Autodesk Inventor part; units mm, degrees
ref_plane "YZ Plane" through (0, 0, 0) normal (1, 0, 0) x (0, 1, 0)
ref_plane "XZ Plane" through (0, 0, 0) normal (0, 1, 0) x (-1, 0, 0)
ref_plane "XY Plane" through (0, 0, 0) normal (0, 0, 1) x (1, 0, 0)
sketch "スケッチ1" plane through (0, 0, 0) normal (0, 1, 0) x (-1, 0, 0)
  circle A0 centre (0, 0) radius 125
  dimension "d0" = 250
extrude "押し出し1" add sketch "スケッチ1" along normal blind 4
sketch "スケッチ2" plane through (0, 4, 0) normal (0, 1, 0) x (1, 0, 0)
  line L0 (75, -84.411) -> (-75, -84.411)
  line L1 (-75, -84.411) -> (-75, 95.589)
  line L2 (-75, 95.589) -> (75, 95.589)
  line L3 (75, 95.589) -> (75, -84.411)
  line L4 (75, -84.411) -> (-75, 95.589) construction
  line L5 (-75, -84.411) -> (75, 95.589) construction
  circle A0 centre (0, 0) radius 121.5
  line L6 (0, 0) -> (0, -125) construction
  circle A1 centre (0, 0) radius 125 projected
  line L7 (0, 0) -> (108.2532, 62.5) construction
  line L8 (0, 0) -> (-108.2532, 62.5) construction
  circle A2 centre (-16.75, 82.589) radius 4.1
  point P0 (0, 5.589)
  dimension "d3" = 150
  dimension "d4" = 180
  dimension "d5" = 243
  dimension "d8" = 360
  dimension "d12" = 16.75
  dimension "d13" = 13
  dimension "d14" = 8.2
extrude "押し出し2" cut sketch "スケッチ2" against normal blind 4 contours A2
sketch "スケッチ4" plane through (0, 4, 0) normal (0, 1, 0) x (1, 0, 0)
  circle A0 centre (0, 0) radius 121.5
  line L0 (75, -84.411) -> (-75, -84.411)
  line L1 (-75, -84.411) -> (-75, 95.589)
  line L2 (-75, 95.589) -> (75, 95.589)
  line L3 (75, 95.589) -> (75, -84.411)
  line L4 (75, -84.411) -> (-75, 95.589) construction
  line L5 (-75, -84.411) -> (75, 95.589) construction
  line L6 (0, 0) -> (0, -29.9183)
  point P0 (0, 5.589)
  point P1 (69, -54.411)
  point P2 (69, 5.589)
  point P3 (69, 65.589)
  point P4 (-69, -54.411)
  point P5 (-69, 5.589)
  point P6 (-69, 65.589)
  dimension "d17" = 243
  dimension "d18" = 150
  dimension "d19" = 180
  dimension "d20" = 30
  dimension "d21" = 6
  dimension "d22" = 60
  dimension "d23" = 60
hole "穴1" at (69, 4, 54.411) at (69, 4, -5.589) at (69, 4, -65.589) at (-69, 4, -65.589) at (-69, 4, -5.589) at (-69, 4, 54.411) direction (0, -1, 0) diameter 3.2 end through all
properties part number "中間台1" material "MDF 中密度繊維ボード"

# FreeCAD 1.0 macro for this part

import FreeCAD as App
import Part
import Sketcher
Q = App.Units.Quantity

doc = App.newDocument("Part")
body = doc.addObject("PartDesign::Body", "Body")

# Sketch on XZ plane
sketch1 = doc.addObject("Sketcher::SketchObject", "Sketch")
body.addObject(sketch1)
sketch1.AttachmentSupport = (doc.XZ_Plane, [""])
sketch1.MapMode = "FlatFace"
sketch1.addGeometry(Part.Circle(App.Vector(0, 0, 0), App.Vector(0, 0, 1), 125), False)
sketch1.addConstraint(Sketcher.Constraint("Coincident", 0, 3, -1, 1))
sketch1.addConstraint(Sketcher.Constraint("Diameter", 0, Q("250 mm")))
pad1 = doc.addObject("PartDesign::Pad", "Pad")
body.addObject(pad1)
pad1.Profile = sketch1
pad1.Length = 4
pad1.Reversed = True

# Sketch on XZ plane
sketch2 = doc.addObject("Sketcher::SketchObject", "Sketch001")
body.addObject(sketch2)
sketch2.AttachmentSupport = (doc.XZ_Plane, [""])
sketch2.MapMode = "FlatFace"
sketch2.AttachmentOffset = App.Placement(App.Vector(0, 0, -4), App.Rotation())
sketch2.addGeometry(Part.Circle(App.Vector(-16.8, -82.6, 0), App.Vector(0, 0, 1), 4.1), False)
sketch2.addConstraint(Sketcher.Constraint("Diameter", 0, Q("8.2 mm")))
sketch2.addConstraint(Sketcher.Constraint("DistanceX", 0, 3, -1, 1, Q("16.75 mm")))
sketch2.addConstraint(Sketcher.Constraint("DistanceY", 0, 3, -1, 1, Q("82.589 mm")))
pocket1 = doc.addObject("PartDesign::Pocket", "Pocket")
body.addObject(pocket1)
pocket1.Profile = sketch2
pocket1.Length = 4
pocket1.Reversed = True

# Sketch on XZ plane
sketch3 = doc.addObject("Sketcher::SketchObject", "Sketch002")
body.addObject(sketch3)
sketch3.AttachmentSupport = (doc.XZ_Plane, [""])
sketch3.MapMode = "FlatFace"
sketch3.AttachmentOffset = App.Placement(App.Vector(0, 0, -4), App.Rotation())
sketch3.addGeometry(Part.Circle(App.Vector(69, 54.4, 0), App.Vector(0, 0, 1), 1.6), False)
sketch3.addGeometry(Part.Circle(App.Vector(69, -5.6, 0), App.Vector(0, 0, 1), 1.6), False)
sketch3.addGeometry(Part.Circle(App.Vector(69, -65.6, 0), App.Vector(0, 0, 1), 1.6), False)
sketch3.addGeometry(Part.Circle(App.Vector(-69, -65.6, 0), App.Vector(0, 0, 1), 1.6), False)
sketch3.addGeometry(Part.Circle(App.Vector(-69, -5.6, 0), App.Vector(0, 0, 1), 1.6), False)
sketch3.addGeometry(Part.Circle(App.Vector(-69, 54.4, 0), App.Vector(0, 0, 1), 1.6), False)
sketch3.addConstraint(Sketcher.Constraint("Equal", 0, 1))
sketch3.addConstraint(Sketcher.Constraint("Equal", 1, 2))
sketch3.addConstraint(Sketcher.Constraint("Equal", 2, 3))
sketch3.addConstraint(Sketcher.Constraint("Equal", 3, 4))
sketch3.addConstraint(Sketcher.Constraint("Equal", 4, 5))
sketch3.addConstraint(Sketcher.Constraint("Symmetric", 2, 3, 3, 3, -2))
sketch3.addConstraint(Sketcher.Constraint("Symmetric", 1, 3, 4, 3, -2))
sketch3.addConstraint(Sketcher.Constraint("Symmetric", 0, 3, 5, 3, -2))
sketch3.addConstraint(Sketcher.Constraint("Vertical", 0, 3, 1, 3))
sketch3.addConstraint(Sketcher.Constraint("Vertical", 1, 3, 2, 3))
sketch3.addConstraint(Sketcher.Constraint("Diameter", 0, Q("3.2 mm")))
sketch3.addConstraint(Sketcher.Constraint("DistanceX", -1, 1, 0, 3, Q("69 mm")))
sketch3.addConstraint(Sketcher.Constraint("DistanceY", 1, 3, 0, 3, Q("60 mm")))
sketch3.addConstraint(Sketcher.Constraint("DistanceY", 2, 3, 1, 3, Q("60 mm")))
sketch3.addConstraint(Sketcher.Constraint("DistanceY", -1, 1, 0, 3, Q("54.411 mm")))
doc.recompute()
hole = doc.addObject("PartDesign::Hole", "Hole")
body.addObject(hole)
hole.Profile = sketch3
hole.ThreadType = "None"
hole.Diameter = 3.2
hole.DepthType = "ThroughAll"
hole.Reversed = True

doc.recompute()
